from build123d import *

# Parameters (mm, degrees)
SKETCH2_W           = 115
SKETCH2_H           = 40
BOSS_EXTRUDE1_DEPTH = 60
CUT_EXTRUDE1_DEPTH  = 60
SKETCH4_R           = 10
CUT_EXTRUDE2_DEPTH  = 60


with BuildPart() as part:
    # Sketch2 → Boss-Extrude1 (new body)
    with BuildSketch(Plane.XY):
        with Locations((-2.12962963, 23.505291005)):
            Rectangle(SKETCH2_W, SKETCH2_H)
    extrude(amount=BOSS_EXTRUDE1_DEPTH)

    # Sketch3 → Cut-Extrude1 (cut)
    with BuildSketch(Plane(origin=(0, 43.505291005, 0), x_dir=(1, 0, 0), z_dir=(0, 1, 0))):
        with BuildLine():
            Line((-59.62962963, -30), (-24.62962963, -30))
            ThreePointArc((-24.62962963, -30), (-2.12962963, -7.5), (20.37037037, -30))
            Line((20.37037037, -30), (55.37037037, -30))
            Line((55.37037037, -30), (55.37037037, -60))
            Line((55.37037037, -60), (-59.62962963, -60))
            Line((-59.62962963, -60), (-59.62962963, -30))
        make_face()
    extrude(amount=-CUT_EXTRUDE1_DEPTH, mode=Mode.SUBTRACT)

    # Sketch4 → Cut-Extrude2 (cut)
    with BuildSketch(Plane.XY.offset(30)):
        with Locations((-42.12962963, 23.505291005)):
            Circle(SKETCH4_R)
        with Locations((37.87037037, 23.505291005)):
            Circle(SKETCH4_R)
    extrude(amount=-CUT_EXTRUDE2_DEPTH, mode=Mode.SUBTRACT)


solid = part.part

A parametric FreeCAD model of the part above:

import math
import FreeCAD as App
import Part
import Sketcher
Q = App.Units.Quantity


def add_polygon(sketch, points):
    """Adds a closed chain of lines whose ends are joined by coincident constraints."""
    first, n = sketch.GeometryCount, len(points)
    for a, b in zip(points, points[1:] + points[:1]):
        sketch.addGeometry(Part.LineSegment(App.Vector(*a, 0), App.Vector(*b, 0)), False)
    for i in range(n):
        sketch.addConstraint(Sketcher.Constraint("Coincident", first + i, 2, first + (i + 1) % n, 1))

doc = App.newDocument("Part")
body = doc.addObject("PartDesign::Body", "Body")

sketch1 = doc.addObject("Sketcher::SketchObject", "Sketch")
body.addObject(sketch1)
sketch1.AttachmentSupport = (doc.XY_Plane, [""])
sketch1.MapMode = "FlatFace"
add_polygon(sketch1, [(-60, 44), (-60, 4), (55, 4), (55, 44)])
sketch1.addConstraint([
    Sketcher.Constraint("Vertical", 0),
    Sketcher.Constraint("Horizontal", 1),
    Sketcher.Constraint("Vertical", 2),
    Sketcher.Constraint("Horizontal", 3),
    Sketcher.Constraint("DistanceX", 1, 1, 1, 2, Q("115 mm")),
    Sketcher.Constraint("DistanceY", 0, 2, 0, 1, Q("40 mm")),
    Sketcher.Constraint("DistanceX", 0, 2, -1, 1, Q("59.62963 mm")),
    Sketcher.Constraint("DistanceY", -1, 1, 0, 2, Q("3.505291 mm")),
])
pad1 = doc.addObject("PartDesign::Pad", "Pad")
body.addObject(pad1)
pad1.Profile = sketch1
pad1.Length = 60

sketch2 = doc.addObject("Sketcher::SketchObject", "Sketch001")
body.addObject(sketch2)
sketch2.AttachmentSupport = (doc.XZ_Plane, [""])
sketch2.MapMode = "FlatFace"
sketch2.AttachmentOffset = App.Placement(App.Vector(0, 0, -43.505291), App.Rotation())
sketch2.addGeometry([
    Part.LineSegment(App.Vector(-25, 30, 0), App.Vector(-60, 30, 0)),
    Part.LineSegment(App.Vector(-60, 30, 0), App.Vector(-60, 60, 0)),
    Part.LineSegment(App.Vector(-60, 60, 0), App.Vector(55, 60, 0)),
    Part.LineSegment(App.Vector(55, 60, 0), App.Vector(55, 30, 0)),
    Part.LineSegment(App.Vector(55, 30, 0), App.Vector(20, 30, 0)),
    Part.ArcOfCircle(Part.Circle(App.Vector(-2, 30, 0), App.Vector(0, 0, 1), 22), math.radians(180), math.radians(360)),
], False)
sketch2.addConstraint([
    Sketcher.Constraint("Coincident", 0, 2, 1, 1),
    Sketcher.Constraint("Coincident", 1, 2, 2, 1),
    Sketcher.Constraint("Coincident", 2, 2, 3, 1),
    Sketcher.Constraint("Coincident", 3, 2, 4, 1),
    Sketcher.Constraint("Coincident", 4, 2, 5, 2),
    Sketcher.Constraint("Coincident", 5, 1, 0, 1),
    Sketcher.Constraint("Horizontal", 0),
    Sketcher.Constraint("Vertical", 1),
    Sketcher.Constraint("Horizontal", 2),
    Sketcher.Constraint("Vertical", 3),
    Sketcher.Constraint("Horizontal", 4),
    Sketcher.Constraint("Horizontal", 5, 3, 0, 2),
    Sketcher.Constraint("Horizontal", 0, 2, 3, 2),
    Sketcher.Constraint("Equal", 0, 4),
    Sketcher.Constraint("Radius", 5, Q("22.5 mm")),
    Sketcher.Constraint("DistanceX", 0, 2, 0, 1, Q("35 mm")),
    Sketcher.Constraint("DistanceY", 1, 1, 1, 2, Q("30 mm")),
    Sketcher.Constraint("DistanceY", -1, 1, 5, 3, Q("30 mm")),
    Sketcher.Constraint("DistanceX", 5, 3, -1, 1, Q("2.12963 mm")),
])
pocket1 = doc.addObject("PartDesign::Pocket", "Pocket")
body.addObject(pocket1)
pocket1.Profile = sketch2
pocket1.Length = 60
pocket1.Reversed = True

sketch3 = doc.addObject("Sketcher::SketchObject", "Sketch002")
body.addObject(sketch3)
sketch3.AttachmentSupport = (doc.XY_Plane, [""])
sketch3.MapMode = "FlatFace"
sketch3.AttachmentOffset = App.Placement(App.Vector(0, 0, 30), App.Rotation())
sketch3.addGeometry([
    Part.Circle(App.Vector(-42, 24, 0), App.Vector(0, 0, 1), 10),
    Part.Circle(App.Vector(38, 24, 0), App.Vector(0, 0, 1), 10),
], False)
sketch3.addConstraint([
    Sketcher.Constraint("Equal", 0, 1),
    Sketcher.Constraint("Horizontal", 0, 3, 1, 3),
    Sketcher.Constraint("Diameter", 0, Q("20 mm")),
    Sketcher.Constraint("DistanceX", 0, 3, 1, 3, Q("80 mm")),
    Sketcher.Constraint("DistanceX", 0, 3, -1, 1, Q("42.12963 mm")),
    Sketcher.Constraint("DistanceY", -1, 1, 0, 3, Q("23.505291 mm")),
])
pocket2 = doc.addObject("PartDesign::Pocket", "Pocket001")
body.addObject(pocket2)
pocket2.Profile = sketch3
pocket2.Length = 60

doc.recompute()
